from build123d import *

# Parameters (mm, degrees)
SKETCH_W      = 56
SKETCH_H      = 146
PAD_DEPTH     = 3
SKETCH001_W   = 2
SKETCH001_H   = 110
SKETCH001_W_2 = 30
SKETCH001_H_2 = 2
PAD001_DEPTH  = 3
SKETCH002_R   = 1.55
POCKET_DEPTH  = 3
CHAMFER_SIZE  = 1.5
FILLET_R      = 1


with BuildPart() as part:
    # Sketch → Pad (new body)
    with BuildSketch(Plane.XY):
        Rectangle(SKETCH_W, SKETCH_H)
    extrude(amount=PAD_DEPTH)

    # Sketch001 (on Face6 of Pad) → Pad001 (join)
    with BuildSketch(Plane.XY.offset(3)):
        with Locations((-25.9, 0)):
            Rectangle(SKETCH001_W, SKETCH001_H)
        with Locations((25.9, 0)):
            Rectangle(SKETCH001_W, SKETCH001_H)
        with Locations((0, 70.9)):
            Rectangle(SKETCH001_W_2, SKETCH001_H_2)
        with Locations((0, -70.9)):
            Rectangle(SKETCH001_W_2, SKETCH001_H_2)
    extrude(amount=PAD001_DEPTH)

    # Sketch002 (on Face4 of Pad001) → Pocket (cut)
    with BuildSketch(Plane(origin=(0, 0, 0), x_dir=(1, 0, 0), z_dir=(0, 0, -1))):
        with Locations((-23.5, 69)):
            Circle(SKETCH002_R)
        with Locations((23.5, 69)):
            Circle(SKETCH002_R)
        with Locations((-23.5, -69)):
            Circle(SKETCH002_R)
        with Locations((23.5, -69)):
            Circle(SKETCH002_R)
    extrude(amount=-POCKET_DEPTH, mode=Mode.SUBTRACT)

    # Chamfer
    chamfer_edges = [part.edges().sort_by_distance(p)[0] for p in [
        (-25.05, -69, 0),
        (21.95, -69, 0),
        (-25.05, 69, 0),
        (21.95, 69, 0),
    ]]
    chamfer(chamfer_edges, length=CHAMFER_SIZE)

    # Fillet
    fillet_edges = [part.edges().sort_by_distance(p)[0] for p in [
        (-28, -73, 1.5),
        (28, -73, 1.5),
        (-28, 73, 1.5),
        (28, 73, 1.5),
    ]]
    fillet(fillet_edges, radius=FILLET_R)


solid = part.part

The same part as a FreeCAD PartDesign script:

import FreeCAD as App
import Part
import Sketcher

V = App.Vector


def edges_at(feature, points):
    """Names of the edges that pass closest to the given points."""
    edges = feature.Shape.Edges
    near = lambda p: min(range(len(edges)), key=lambda i: edges[i].distToShape(Part.Vertex(*p))[0])
    return sorted({f"Edge{near(p) + 1}" for p in points})

doc = App.newDocument("Part")
body = doc.addObject("PartDesign::Body", "Body")

sketch1 = body.newObject("Sketcher::SketchObject", "Sketch")
sketch1.AttachmentSupport = (doc.getObject("XY_Plane"), [""])
sketch1.MapMode = "FlatFace"
sketch1.addGeometry([
    Part.LineSegment(V(-28, 73, 0), V(-28, -73, 0)),
    Part.LineSegment(V(-28, -73, 0), V(28, -73, 0)),
    Part.LineSegment(V(28, -73, 0), V(28, 73, 0)),
    Part.LineSegment(V(28, 73, 0), V(-28, 73, 0)),
], False)
sketch1.addConstraint([
    Sketcher.Constraint("Coincident", 0, 2, 1, 1),
    Sketcher.Constraint("Coincident", 1, 2, 2, 1),
    Sketcher.Constraint("Coincident", 2, 2, 3, 1),
    Sketcher.Constraint("Coincident", 3, 2, 0, 1),
    Sketcher.Constraint("Vertical", 0),
    Sketcher.Constraint("Horizontal", 1),
    Sketcher.Constraint("Vertical", 2),
    Sketcher.Constraint("Horizontal", 3),
    Sketcher.Constraint("Symmetric", 0, 2, 2, 2, -1, 1),
    Sketcher.Constraint("DistanceX", 1, 1, 1, 2, 56.0),
    Sketcher.Constraint("DistanceY", 0, 2, 0, 1, 146.0),
])
pad1 = body.newObject("PartDesign::Pad", "Pad")
pad1.Profile = sketch1
pad1.Length = 3

sketch2 = body.newObject("Sketcher::SketchObject", "Sketch001")
sketch2.AttachmentSupport = (doc.getObject("XY_Plane"), [""])
sketch2.MapMode = "FlatFace"
sketch2.AttachmentOffset = App.Placement(V(0, 0, 3), App.Rotation())
sketch2.addGeometry([
    Part.LineSegment(V(-26.9, 55, 0), V(-26.9, -55, 0)),
    Part.LineSegment(V(-26.9, -55, 0), V(-24.9, -55, 0)),
    Part.LineSegment(V(-24.9, -55, 0), V(-24.9, 55, 0)),
    Part.LineSegment(V(-24.9, 55, 0), V(-26.9, 55, 0)),
    Part.LineSegment(V(24.9, 55, 0), V(24.9, -55, 0)),
    Part.LineSegment(V(24.9, -55, 0), V(26.9, -55, 0)),
    Part.LineSegment(V(26.9, -55, 0), V(26.9, 55, 0)),
    Part.LineSegment(V(26.9, 55, 0), V(24.9, 55, 0)),
    Part.LineSegment(V(-15, 71.9, 0), V(-15, 69.9, 0)),
    Part.LineSegment(V(-15, 69.9, 0), V(15, 69.9, 0)),
    Part.LineSegment(V(15, 69.9, 0), V(15, 71.9, 0)),
    Part.LineSegment(V(15, 71.9, 0), V(-15, 71.9, 0)),
    Part.LineSegment(V(-15, -69.9, 0), V(-15, -71.9, 0)),
    Part.LineSegment(V(-15, -71.9, 0), V(15, -71.9, 0)),
    Part.LineSegment(V(15, -71.9, 0), V(15, -69.9, 0)),
    Part.LineSegment(V(15, -69.9, 0), V(-15, -69.9, 0)),
], False)
sketch2.addConstraint([
    Sketcher.Constraint("Coincident", 0, 2, 1, 1),
    Sketcher.Constraint("Coincident", 1, 2, 2, 1),
    Sketcher.Constraint("Coincident", 2, 2, 3, 1),
    Sketcher.Constraint("Coincident", 3, 2, 0, 1),
    Sketcher.Constraint("Coincident", 4, 2, 5, 1),
    Sketcher.Constraint("Coincident", 5, 2, 6, 1),
    Sketcher.Constraint("Coincident", 6, 2, 7, 1),
    Sketcher.Constraint("Coincident", 7, 2, 4, 1),
    Sketcher.Constraint("Coincident", 8, 2, 9, 1),
    Sketcher.Constraint("Coincident", 9, 2, 10, 1),
    Sketcher.Constraint("Coincident", 10, 2, 11, 1),
    Sketcher.Constraint("Coincident", 11, 2, 8, 1),
    Sketcher.Constraint("Coincident", 12, 2, 13, 1),
    Sketcher.Constraint("Coincident", 13, 2, 14, 1),
    Sketcher.Constraint("Coincident", 14, 2, 15, 1),
    Sketcher.Constraint("Coincident", 15, 2, 12, 1),
    Sketcher.Constraint("Vertical", 0),
    Sketcher.Constraint("Horizontal", 1),
    Sketcher.Constraint("Vertical", 2),
    Sketcher.Constraint("Horizontal", 3),
    Sketcher.Constraint("Vertical", 4),
    Sketcher.Constraint("Horizontal", 5),
    Sketcher.Constraint("Vertical", 6),
    Sketcher.Constraint("Horizontal", 7),
    Sketcher.Constraint("Vertical", 8),
    Sketcher.Constraint("Horizontal", 9),
    Sketcher.Constraint("Vertical", 10),
    Sketcher.Constraint("Horizontal", 11),
    Sketcher.Constraint("Vertical", 12),
    Sketcher.Constraint("Horizontal", 13),
    Sketcher.Constraint("Vertical", 14),
    Sketcher.Constraint("Horizontal", 15),
    Sketcher.Constraint("Symmetric", 2, 2, 4, 2, -1, 1),
    Sketcher.Constraint("Symmetric", 0, 2, 6, 2, -1, 1),
    Sketcher.Constraint("Symmetric", 10, 2, 12, 2, -1, 1),
    Sketcher.Constraint("Symmetric", 8, 2, 14, 2, -1, 1),
    Sketcher.Constraint("Horizontal", 1, 2, 4, 2),
    Sketcher.Constraint("Vertical", 11, 2, 12, 2),
    Sketcher.Constraint("Equal", 7, 8),
    Sketcher.Constraint("DistanceX", 1, 1, 1, 2, 2.0),
    Sketcher.Constraint("DistanceX", 9, 1, 9, 2, 30.0),
    Sketcher.Constraint("DistanceY", 0, 2, 0, 1, 110.0),
    Sketcher.Constraint("DistanceX", 0, 2, -1, 1, 26.9),
    Sketcher.Constraint("DistanceY", -1, 1, 8, 2, 69.9),
])
pad2 = body.newObject("PartDesign::Pad", "Pad001")
pad2.Profile = sketch2
pad2.Length = 3

sketch3 = body.newObject("Sketcher::SketchObject", "Sketch002")
sketch3.AttachmentSupport = (doc.getObject("XY_Plane"), [""])
sketch3.MapMode = "FlatFace"
sketch3.addGeometry([
    Part.Circle(V(-23.5, -69, 0), V(0, 0, 1), 1.6),
    Part.Circle(V(23.5, -69, 0), V(0, 0, 1), 1.6),
    Part.Circle(V(-23.5, 69, 0), V(0, 0, 1), 1.6),
    Part.Circle(V(23.5, 69, 0), V(0, 0, 1), 1.6),
], False)
sketch3.addConstraint([
    Sketcher.Constraint("Equal", 0, 1),
    Sketcher.Constraint("Equal", 1, 2),
    Sketcher.Constraint("Equal", 2, 3),
    Sketcher.Constraint("Symmetric", 1, 3, 2, 3, -1, 1),
    Sketcher.Constraint("Symmetric", 0, 3, 3, 3, -1, 1),
    Sketcher.Constraint("Symmetric", 0, 3, 1, 3, -2),
    Sketcher.Constraint("Diameter", 0, 3.1),
    Sketcher.Constraint("DistanceY", 0, 3, -1, 1, 69.0),
    Sketcher.Constraint("DistanceX", 0, 3, 1, 3, 47.0),
])
pocket1 = body.newObject("PartDesign::Pocket", "Pocket")
pocket1.Profile = sketch3
pocket1.Length = 3
pocket1.Reversed = True
doc.recompute()

chamfer = body.newObject("PartDesign::Chamfer", "Chamfer")
chamfer.Base = (pocket1, edges_at(pocket1, [
    (-25.05, -69, 0),
    (21.95, -69, 0),
    (-25.05, 69, 0),
    (21.95, 69, 0),
]))
chamfer.Size = 1.5
doc.recompute()

fillet = body.newObject("PartDesign::Fillet", "Fillet")
fillet.Base = (chamfer, edges_at(chamfer, [
    (-28, -73, 1.5),
    (28, -73, 1.5),
    (-28, 73, 1.5),
    (28, 73, 1.5),
]))
fillet.Radius = 1

doc.recompute()
